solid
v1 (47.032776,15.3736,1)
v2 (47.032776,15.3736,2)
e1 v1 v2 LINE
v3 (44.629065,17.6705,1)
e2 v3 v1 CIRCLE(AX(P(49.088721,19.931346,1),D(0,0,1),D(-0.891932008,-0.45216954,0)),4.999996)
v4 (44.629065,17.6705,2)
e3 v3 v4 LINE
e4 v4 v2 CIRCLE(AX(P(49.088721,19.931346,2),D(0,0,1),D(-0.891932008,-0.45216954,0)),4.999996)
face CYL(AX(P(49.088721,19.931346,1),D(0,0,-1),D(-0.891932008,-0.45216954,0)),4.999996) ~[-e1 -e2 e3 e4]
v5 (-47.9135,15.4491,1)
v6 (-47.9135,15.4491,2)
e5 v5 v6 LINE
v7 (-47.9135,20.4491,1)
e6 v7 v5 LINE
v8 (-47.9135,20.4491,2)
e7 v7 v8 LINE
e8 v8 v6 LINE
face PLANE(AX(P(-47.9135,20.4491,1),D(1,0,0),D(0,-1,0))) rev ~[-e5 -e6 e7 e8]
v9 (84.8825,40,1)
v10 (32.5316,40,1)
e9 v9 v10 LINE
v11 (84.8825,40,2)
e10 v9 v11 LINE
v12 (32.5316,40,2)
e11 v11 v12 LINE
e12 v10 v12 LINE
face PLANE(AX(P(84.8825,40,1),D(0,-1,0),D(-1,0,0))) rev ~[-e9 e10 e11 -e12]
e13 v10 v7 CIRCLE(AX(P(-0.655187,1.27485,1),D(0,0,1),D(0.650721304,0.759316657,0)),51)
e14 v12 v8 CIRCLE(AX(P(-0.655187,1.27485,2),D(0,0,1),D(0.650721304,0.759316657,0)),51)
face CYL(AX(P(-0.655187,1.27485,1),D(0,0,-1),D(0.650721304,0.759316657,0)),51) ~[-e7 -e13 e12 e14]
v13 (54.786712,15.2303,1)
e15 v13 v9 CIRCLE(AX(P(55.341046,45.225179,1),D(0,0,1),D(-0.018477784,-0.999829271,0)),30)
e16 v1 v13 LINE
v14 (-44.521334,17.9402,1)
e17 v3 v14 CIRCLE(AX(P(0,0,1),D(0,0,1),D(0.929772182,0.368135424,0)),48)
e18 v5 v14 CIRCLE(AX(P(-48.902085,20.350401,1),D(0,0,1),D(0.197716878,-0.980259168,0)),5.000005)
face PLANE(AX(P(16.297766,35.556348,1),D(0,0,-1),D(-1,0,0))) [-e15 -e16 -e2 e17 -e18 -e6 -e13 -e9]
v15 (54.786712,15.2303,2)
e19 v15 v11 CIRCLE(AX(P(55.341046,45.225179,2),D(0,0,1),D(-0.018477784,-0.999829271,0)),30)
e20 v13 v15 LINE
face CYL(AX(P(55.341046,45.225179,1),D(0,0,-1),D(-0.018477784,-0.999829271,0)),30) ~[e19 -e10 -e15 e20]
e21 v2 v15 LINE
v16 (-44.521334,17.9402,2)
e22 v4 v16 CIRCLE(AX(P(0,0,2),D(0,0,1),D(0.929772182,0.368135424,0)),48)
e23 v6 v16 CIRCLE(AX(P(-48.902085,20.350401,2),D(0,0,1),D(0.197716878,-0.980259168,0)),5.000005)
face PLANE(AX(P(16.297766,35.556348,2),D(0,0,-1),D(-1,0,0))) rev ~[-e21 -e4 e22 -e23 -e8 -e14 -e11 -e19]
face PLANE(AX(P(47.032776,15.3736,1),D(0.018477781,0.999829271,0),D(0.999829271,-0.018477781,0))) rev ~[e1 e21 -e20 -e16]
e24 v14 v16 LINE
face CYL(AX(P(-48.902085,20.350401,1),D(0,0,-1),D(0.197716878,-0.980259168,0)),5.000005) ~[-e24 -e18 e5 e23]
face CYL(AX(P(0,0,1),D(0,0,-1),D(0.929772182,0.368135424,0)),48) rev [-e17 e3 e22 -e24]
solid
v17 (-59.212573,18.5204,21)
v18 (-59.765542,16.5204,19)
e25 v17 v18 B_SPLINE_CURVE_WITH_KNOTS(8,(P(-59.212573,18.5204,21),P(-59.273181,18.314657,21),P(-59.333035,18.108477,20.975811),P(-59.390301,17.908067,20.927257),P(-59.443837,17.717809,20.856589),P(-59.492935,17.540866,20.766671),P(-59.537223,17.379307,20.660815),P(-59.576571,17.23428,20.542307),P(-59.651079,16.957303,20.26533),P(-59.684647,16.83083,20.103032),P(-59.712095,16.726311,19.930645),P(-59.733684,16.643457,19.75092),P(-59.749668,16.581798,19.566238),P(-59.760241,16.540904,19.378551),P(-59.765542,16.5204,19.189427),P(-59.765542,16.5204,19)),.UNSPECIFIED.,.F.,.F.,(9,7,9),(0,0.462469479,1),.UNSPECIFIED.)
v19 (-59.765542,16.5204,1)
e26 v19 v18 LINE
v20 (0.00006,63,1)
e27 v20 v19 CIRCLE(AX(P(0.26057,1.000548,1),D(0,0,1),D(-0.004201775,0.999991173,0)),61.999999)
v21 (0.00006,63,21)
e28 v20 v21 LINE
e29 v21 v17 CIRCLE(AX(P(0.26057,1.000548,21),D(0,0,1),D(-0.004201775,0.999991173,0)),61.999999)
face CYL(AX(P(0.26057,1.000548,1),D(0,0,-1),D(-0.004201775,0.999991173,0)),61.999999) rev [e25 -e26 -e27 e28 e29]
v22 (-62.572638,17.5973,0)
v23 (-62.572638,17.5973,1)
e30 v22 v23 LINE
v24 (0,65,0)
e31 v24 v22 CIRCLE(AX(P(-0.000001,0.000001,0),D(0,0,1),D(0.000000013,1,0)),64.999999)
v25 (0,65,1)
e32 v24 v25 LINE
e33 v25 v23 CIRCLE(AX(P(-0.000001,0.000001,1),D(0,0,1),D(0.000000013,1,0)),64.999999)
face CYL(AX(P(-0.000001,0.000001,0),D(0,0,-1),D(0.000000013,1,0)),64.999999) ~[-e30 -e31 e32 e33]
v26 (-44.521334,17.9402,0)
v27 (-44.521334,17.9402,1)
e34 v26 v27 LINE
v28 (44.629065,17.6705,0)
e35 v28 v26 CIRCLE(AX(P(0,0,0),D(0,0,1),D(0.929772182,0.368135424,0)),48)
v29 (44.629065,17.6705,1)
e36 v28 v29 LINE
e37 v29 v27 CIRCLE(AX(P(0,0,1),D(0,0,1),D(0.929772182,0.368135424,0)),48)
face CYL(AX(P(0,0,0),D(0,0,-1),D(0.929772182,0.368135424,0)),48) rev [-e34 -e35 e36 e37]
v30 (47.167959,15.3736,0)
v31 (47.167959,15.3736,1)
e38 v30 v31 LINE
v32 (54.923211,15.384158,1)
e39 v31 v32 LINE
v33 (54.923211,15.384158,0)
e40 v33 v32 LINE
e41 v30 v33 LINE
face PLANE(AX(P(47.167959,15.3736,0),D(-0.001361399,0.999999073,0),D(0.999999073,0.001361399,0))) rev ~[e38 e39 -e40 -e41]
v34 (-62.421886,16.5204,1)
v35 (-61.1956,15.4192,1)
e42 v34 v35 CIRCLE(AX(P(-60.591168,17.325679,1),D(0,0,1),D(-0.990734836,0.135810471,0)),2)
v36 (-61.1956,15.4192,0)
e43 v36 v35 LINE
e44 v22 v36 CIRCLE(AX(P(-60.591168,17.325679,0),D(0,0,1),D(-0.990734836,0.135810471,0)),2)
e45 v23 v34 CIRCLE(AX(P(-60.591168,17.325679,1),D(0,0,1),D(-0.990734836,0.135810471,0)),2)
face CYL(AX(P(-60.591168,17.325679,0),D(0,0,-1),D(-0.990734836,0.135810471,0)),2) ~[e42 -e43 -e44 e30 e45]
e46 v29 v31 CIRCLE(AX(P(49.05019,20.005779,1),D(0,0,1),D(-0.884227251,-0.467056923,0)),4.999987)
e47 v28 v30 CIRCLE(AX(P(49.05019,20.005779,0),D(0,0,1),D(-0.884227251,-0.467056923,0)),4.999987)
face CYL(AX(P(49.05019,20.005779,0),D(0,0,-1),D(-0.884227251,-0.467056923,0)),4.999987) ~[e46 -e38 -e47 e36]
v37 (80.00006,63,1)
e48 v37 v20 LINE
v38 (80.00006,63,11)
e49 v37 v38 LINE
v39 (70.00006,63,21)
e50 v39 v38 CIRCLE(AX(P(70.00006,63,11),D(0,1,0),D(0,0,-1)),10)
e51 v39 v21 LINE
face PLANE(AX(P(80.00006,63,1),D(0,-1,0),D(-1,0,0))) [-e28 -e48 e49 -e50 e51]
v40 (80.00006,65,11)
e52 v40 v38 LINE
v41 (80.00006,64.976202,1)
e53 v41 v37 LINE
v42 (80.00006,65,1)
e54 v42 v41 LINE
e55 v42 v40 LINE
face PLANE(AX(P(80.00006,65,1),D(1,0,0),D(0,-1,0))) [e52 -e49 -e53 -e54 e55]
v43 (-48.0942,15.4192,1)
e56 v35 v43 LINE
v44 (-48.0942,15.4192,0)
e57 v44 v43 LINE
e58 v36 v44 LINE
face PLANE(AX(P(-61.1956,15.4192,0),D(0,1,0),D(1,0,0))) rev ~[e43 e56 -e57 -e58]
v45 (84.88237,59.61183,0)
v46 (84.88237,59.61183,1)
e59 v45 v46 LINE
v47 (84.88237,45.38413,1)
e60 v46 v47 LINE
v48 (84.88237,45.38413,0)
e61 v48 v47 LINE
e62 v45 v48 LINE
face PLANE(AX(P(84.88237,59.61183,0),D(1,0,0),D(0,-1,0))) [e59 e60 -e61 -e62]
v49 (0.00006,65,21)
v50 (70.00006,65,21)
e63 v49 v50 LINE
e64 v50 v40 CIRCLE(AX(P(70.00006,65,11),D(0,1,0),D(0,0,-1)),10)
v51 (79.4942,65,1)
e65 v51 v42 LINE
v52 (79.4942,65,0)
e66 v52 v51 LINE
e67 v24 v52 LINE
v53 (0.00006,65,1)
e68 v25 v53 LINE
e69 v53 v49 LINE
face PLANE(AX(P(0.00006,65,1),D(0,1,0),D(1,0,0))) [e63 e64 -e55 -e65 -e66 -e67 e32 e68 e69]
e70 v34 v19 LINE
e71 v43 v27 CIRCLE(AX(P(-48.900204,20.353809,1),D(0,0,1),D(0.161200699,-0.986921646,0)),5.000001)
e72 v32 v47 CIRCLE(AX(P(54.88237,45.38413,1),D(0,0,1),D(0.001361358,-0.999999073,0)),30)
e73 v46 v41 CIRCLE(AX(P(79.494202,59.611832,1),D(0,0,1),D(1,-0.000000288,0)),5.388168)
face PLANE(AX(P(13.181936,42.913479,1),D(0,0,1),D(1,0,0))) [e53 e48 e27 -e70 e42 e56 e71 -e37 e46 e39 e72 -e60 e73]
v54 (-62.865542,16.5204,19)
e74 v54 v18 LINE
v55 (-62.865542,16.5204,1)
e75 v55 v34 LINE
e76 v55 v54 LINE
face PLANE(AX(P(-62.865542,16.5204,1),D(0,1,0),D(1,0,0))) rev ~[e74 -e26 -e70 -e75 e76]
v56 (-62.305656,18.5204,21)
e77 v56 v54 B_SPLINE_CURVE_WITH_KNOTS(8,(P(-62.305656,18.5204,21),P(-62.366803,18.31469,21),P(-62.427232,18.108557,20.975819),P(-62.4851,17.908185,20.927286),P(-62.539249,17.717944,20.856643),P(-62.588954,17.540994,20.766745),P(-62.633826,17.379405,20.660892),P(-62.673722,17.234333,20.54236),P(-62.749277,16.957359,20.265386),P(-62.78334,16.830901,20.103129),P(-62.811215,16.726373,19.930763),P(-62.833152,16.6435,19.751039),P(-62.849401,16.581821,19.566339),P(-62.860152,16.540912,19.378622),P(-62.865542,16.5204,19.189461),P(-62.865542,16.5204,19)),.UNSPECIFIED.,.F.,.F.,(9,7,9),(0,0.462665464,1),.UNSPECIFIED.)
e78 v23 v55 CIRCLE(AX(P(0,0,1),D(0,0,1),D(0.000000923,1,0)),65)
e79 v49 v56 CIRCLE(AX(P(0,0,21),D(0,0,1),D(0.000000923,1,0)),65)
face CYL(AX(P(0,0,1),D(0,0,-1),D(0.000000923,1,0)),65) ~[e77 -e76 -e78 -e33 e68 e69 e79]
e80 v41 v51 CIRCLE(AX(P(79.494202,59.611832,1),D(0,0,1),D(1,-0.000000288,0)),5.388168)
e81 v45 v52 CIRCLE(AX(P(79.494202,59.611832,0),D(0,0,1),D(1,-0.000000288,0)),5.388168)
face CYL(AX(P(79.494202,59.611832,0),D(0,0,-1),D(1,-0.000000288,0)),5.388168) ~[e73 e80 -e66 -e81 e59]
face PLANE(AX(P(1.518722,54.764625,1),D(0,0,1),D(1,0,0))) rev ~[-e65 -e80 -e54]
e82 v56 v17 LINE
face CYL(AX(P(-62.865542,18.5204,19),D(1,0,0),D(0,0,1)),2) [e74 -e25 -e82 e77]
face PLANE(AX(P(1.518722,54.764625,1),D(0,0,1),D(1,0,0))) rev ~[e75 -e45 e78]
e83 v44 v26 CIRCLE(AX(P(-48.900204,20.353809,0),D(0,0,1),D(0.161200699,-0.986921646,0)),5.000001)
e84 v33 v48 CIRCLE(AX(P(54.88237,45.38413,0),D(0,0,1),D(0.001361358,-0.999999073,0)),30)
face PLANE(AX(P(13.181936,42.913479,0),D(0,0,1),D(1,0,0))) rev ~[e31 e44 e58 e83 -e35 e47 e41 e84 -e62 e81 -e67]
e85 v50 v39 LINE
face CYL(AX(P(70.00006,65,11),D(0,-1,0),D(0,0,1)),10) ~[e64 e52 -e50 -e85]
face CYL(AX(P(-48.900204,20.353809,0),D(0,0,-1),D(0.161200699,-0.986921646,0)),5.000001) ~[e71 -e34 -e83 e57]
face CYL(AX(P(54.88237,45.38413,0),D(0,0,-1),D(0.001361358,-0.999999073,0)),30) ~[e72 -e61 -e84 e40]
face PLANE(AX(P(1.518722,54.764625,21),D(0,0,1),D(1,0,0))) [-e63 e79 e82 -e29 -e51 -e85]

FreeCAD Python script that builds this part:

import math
import FreeCAD as App
import Part
import Sketcher
Q = App.Units.Quantity


def edges_at(feature, points):
    """Names of the edges that pass closest to the given points."""
    edges = feature.Shape.Edges
    near = lambda p: min(range(len(edges)), key=lambda i: edges[i].distToShape(Part.Vertex(*p))[0])
    return sorted({f"Edge{near(p) + 1}" for p in points})

doc = App.newDocument("Part")
body = doc.addObject("PartDesign::Body", "Body")

# Sketch on XY plane
sketch1 = body.newObject("Sketcher::SketchObject", "Sketch")
sketch1.AttachmentSupport = (doc.getObject("XY_Plane"), [""])
sketch1.MapMode = "FlatFace"
sketch1.AttachmentOffset = App.Placement(App.Vector(0, 0, 1), App.Rotation())
sketch1.addGeometry([
    Part.ArcOfCircle(Part.Circle(App.Vector(0, 0, 0), App.Vector(0, 0, 1), 48), math.radians(22), math.radians(158)),  # 0
    Part.ArcOfCircle(Part.Circle(App.Vector(49.1, 19.9, 0), App.Vector(0, 0, 1), 5), math.radians(-153), math.radians(-114)),  # 1
    Part.LineSegment(App.Vector(47, 15.4, 0), App.Vector(54.8, 15.2, 0)),  # 2
    Part.ArcOfCircle(Part.Circle(App.Vector(55.3, 45.2, 0), App.Vector(0, 0, 1), 30), math.radians(-91), math.radians(-10)),  # 3
    Part.LineSegment(App.Vector(84.9, 40, 0), App.Vector(32.5, 40, 0)),  # 4
    Part.ArcOfCircle(Part.Circle(App.Vector(-0.7, 1.3, 0), App.Vector(0, 0, 1), 51), math.radians(49), math.radians(158)),  # 5
    Part.LineSegment(App.Vector(-47.9, 20.4, 0), App.Vector(-47.9, 15.4, 0)),  # 6
    Part.ArcOfCircle(Part.Circle(App.Vector(-48.9, 20.4, 0), App.Vector(0, 0, 1), 5), math.radians(-79), math.radians(-29)),  # 7
], False)
sketch1.addConstraint([
    Sketcher.Constraint("Coincident", 0, 1, 1, 1),
    Sketcher.Constraint("Coincident", 1, 2, 2, 1),
    Sketcher.Constraint("Tangent", 2, 2, 3, 1),
    Sketcher.Constraint("Coincident", 3, 2, 4, 1),
    Sketcher.Constraint("Coincident", 4, 2, 5, 1),
    Sketcher.Constraint("Coincident", 5, 2, 6, 1),
    Sketcher.Constraint("Coincident", 6, 2, 7, 1),
    Sketcher.Constraint("Coincident", 7, 2, 0, 2),
    Sketcher.Constraint("Horizontal", 4),
    Sketcher.Constraint("Vertical", 6),
    Sketcher.Constraint("Coincident", 0, 3, -1, 1),
    Sketcher.Constraint("Radius", 0, Q("48 mm")),
    Sketcher.Constraint("Radius", 3, Q("30 mm")),
    Sketcher.Constraint("Radius", 5, Q("51 mm")),
    Sketcher.Constraint("DistanceY", 6, 2, 6, 1, Q("5 mm")),
    Sketcher.Constraint("DistanceY", -1, 1, 3, 2, Q("40 mm")),
    Sketcher.Constraint("DistanceX", 4, 2, 4, 1, Q("52.3509 mm")),
    Sketcher.Constraint("Radius", 1, Q("4.999996 mm")),
    Sketcher.Constraint("Radius", 7, Q("5.000005 mm")),
    Sketcher.Constraint("DistanceY", -1, 1, 7, 3, Q("20.350401 mm")),
    Sketcher.Constraint("DistanceY", -1, 1, 0, 1, Q("17.6705 mm")),
    Sketcher.Constraint("DistanceY", -1, 1, 1, 2, Q("15.3736 mm")),
    Sketcher.Constraint("DistanceY", -1, 1, 2, 2, Q("15.2303 mm")),
    Sketcher.Constraint("DistanceX", -1, 1, 3, 2, Q("84.8825 mm")),
    Sketcher.Constraint("DistanceX", 5, 2, -1, 1, Q("47.9135 mm")),
    Sketcher.Constraint("DistanceY", -1, 1, 5, 2, Q("20.4491 mm")),
    Sketcher.Constraint("Distance", 2, Q("7.75526 mm")),
])
pad1 = body.newObject("PartDesign::Pad", "Pad")
pad1.Profile = sketch1
pad1.Length = 1
body2 = doc.addObject("PartDesign::Body", "Body001")

# Sketch on XY plane
sketch2 = body2.newObject("Sketcher::SketchObject", "Sketch001")
sketch2.AttachmentSupport = (doc.getObject("XY_Plane001"), [""])
sketch2.MapMode = "FlatFace"
sketch2.addGeometry([
    Part.ArcOfCircle(Part.Circle(App.Vector(0, 0, 0), App.Vector(0, 0, 1), 65), math.radians(90), math.radians(164)),  # 0
    Part.ArcOfCircle(Part.Circle(App.Vector(-60.6, 17.3, 0), App.Vector(0, 0, 1), 2), math.radians(172), math.radians(252)),  # 1
    Part.LineSegment(App.Vector(-61.2, 15.4, 0), App.Vector(-48.1, 15.4, 0)),  # 2
    Part.ArcOfCircle(Part.Circle(App.Vector(-48.9, 20.4, 0), App.Vector(0, 0, 1), 5), math.radians(-81), math.radians(-29)),  # 3
    Part.ArcOfCircle(Part.Circle(App.Vector(0, 0, 0), App.Vector(0, 0, 1), 48), math.radians(22), math.radians(158)),  # 4
    Part.ArcOfCircle(Part.Circle(App.Vector(49.1, 20, 0), App.Vector(0, 0, 1), 5), math.radians(-152), math.radians(-112)),  # 5
    Part.LineSegment(App.Vector(47.2, 15.4, 0), App.Vector(54.9, 15.4, 0)),  # 6
    Part.ArcOfCircle(Part.Circle(App.Vector(54.9, 45.4, 0), App.Vector(0, 0, 1), 30), math.radians(-90), math.radians(0)),  # 7
    Part.LineSegment(App.Vector(84.9, 45.4, 0), App.Vector(84.9, 59.6, 0)),  # 8
    Part.ArcOfCircle(Part.Circle(App.Vector(79.5, 59.6, 0), App.Vector(0, 0, 1), 5.4), math.radians(0), math.radians(90)),  # 9
    Part.LineSegment(App.Vector(79.5, 65, 0), App.Vector(0, 65, 0)),  # 10
], False)
sketch2.addConstraint([
    Sketcher.Constraint("Coincident", 0, 2, 1, 1),
    Sketcher.Constraint("Coincident", 1, 2, 2, 1),
    Sketcher.Constraint("Coincident", 2, 2, 3, 1),
    Sketcher.Constraint("Coincident", 3, 2, 4, 2),
    Sketcher.Constraint("Coincident", 4, 1, 5, 1),
    Sketcher.Constraint("Coincident", 5, 2, 6, 1),
    Sketcher.Constraint("Tangent", 6, 2, 7, 1),
    Sketcher.Constraint("Tangent", 7, 2, 8, 1),
    Sketcher.Constraint("Tangent", 8, 2, 9, 1),
    Sketcher.Constraint("Tangent", 9, 2, 10, 1),
    Sketcher.Constraint("Tangent", 10, 2, 0, 1),
    Sketcher.Constraint("Horizontal", 2),
    Sketcher.Constraint("Vertical", 8),
    Sketcher.Constraint("Horizontal", 10),
    Sketcher.Constraint("Coincident", 0, 3, -1, 1),
    Sketcher.Constraint("Coincident", 4, 3, -1, 1),
    Sketcher.Constraint("Radius", 0, Q("64.999999 mm")),
    Sketcher.Constraint("Radius", 1, Q("2 mm")),
    Sketcher.Constraint("Radius", 3, Q("5.000001 mm")),
    Sketcher.Constraint("Radius", 4, Q("48 mm")),
    Sketcher.Constraint("Radius", 7, Q("30 mm")),
    Sketcher.Constraint("Radius", 9, Q("5.388168 mm")),
    Sketcher.Constraint("DistanceX", 2, 1, 2, 2, Q("13.1014 mm")),
    Sketcher.Constraint("DistanceX", 10, 2, 10, 1, Q("79.4942 mm")),
    Sketcher.Constraint("DistanceY", 8, 1, 8, 2, Q("14.2277 mm")),
    Sketcher.Constraint("Radius", 5, Q("4.999987 mm")),
    Sketcher.Constraint("DistanceY", 2, 2, 3, 2, Q("2.521 mm")),
    Sketcher.Constraint("DistanceY", -1, 1, 0, 2, Q("17.5973 mm")),
    Sketcher.Constraint("DistanceX", 1, 2, -1, 1, Q("61.1956 mm")),
    Sketcher.Constraint("DistanceY", -1, 1, 1, 2, Q("15.4192 mm")),
    Sketcher.Constraint("DistanceY", -1, 1, 4, 1, Q("17.6705 mm")),
    Sketcher.Constraint("DistanceY", -1, 1, 5, 2, Q("15.3736 mm")),
    Sketcher.Constraint("DistanceY", 1, 3, 5, 3, Q("2.6801 mm")),
])
pad2 = body2.newObject("PartDesign::Pad", "Pad001")
pad2.Profile = sketch2
pad2.Length = 1

# Sketch on XY plane
sketch3 = body2.newObject("Sketcher::SketchObject", "Sketch002")
sketch3.AttachmentSupport = (doc.getObject("XY_Plane001"), [""])
sketch3.MapMode = "FlatFace"
sketch3.AttachmentOffset = App.Placement(App.Vector(0, 0, 1), App.Rotation())
sketch3.addGeometry([
    Part.ArcOfCircle(Part.Circle(App.Vector(0, 0, 0), App.Vector(0, 0, 1), 65), math.radians(89.999947), math.radians(165.276183)),  # 0
    Part.LineSegment(App.Vector(-62.865542, 16.5204, 0), App.Vector(-59.765542, 16.5204, 0)),  # 1
    Part.ArcOfCircle(Part.Circle(App.Vector(0.26057, 1.000548, 0), App.Vector(0, 0, 1), 62), math.radians(90.240745), math.radians(165.503539)),  # 2
    Part.LineSegment(App.Vector(0.00006, 63, 0), App.Vector(80.00006, 63, 0)),  # 3
    Part.LineSegment(App.Vector(80.00006, 63, 0), App.Vector(80.00006, 65, 0)),  # 4
    Part.LineSegment(App.Vector(80.00006, 65, 0), App.Vector(0.00006, 65, 0)),  # 5
], False)
sketch3.addConstraint([
    Sketcher.Constraint("Coincident", 0, 2, 1, 1),
    Sketcher.Constraint("Coincident", 1, 2, 2, 2),
    Sketcher.Constraint("Coincident", 2, 1, 3, 1),
    Sketcher.Constraint("Coincident", 3, 2, 4, 1),
    Sketcher.Constraint("Coincident", 4, 2, 5, 1),
    Sketcher.Constraint("Coincident", 5, 2, 0, 1),
    Sketcher.Constraint("Horizontal", 1),
    Sketcher.Constraint("Horizontal", 3),
    Sketcher.Constraint("Vertical", 4),
    Sketcher.Constraint("Horizontal", 5),
    Sketcher.Constraint("Coincident", 0, 3, -1, 1),
    Sketcher.Constraint("Radius", 0, Q("65 mm")),
    Sketcher.Constraint("Radius", 2, Q("62 mm")),
    Sketcher.Constraint("DistanceX", 3, 1, 3, 2, Q("80 mm")),
    Sketcher.Constraint("DistanceX", 5, 2, 5, 1, Q("80 mm")),
    Sketcher.Constraint("DistanceY", 4, 1, 4, 2, Q("2 mm")),
    Sketcher.Constraint("DistanceX", 1, 1, 1, 2, Q("3.1 mm")),
    Sketcher.Constraint("DistanceY", -1, 1, 0, 2, Q("16.5204 mm")),
    Sketcher.Constraint("DistanceX", 1, 2, 2, 1, Q("59.765602 mm")),
])
pad3 = body2.newObject("PartDesign::Pad", "Pad002")
pad3.Profile = sketch3
pad3.Length = 20
doc.recompute()

fillet = body2.newObject("PartDesign::Fillet", "Fillet")
fillet.Base = (pad3, edges_at(pad3, [(80, 64, 21)]))
fillet.Radius = 10
doc.recompute()

fillet2 = body2.newObject("PartDesign::Fillet", "Fillet001")
fillet2.Base = (fillet, edges_at(fillet, [(-61.316, 16.52, 21)]))
fillet2.Radius = 2

doc.recompute()
